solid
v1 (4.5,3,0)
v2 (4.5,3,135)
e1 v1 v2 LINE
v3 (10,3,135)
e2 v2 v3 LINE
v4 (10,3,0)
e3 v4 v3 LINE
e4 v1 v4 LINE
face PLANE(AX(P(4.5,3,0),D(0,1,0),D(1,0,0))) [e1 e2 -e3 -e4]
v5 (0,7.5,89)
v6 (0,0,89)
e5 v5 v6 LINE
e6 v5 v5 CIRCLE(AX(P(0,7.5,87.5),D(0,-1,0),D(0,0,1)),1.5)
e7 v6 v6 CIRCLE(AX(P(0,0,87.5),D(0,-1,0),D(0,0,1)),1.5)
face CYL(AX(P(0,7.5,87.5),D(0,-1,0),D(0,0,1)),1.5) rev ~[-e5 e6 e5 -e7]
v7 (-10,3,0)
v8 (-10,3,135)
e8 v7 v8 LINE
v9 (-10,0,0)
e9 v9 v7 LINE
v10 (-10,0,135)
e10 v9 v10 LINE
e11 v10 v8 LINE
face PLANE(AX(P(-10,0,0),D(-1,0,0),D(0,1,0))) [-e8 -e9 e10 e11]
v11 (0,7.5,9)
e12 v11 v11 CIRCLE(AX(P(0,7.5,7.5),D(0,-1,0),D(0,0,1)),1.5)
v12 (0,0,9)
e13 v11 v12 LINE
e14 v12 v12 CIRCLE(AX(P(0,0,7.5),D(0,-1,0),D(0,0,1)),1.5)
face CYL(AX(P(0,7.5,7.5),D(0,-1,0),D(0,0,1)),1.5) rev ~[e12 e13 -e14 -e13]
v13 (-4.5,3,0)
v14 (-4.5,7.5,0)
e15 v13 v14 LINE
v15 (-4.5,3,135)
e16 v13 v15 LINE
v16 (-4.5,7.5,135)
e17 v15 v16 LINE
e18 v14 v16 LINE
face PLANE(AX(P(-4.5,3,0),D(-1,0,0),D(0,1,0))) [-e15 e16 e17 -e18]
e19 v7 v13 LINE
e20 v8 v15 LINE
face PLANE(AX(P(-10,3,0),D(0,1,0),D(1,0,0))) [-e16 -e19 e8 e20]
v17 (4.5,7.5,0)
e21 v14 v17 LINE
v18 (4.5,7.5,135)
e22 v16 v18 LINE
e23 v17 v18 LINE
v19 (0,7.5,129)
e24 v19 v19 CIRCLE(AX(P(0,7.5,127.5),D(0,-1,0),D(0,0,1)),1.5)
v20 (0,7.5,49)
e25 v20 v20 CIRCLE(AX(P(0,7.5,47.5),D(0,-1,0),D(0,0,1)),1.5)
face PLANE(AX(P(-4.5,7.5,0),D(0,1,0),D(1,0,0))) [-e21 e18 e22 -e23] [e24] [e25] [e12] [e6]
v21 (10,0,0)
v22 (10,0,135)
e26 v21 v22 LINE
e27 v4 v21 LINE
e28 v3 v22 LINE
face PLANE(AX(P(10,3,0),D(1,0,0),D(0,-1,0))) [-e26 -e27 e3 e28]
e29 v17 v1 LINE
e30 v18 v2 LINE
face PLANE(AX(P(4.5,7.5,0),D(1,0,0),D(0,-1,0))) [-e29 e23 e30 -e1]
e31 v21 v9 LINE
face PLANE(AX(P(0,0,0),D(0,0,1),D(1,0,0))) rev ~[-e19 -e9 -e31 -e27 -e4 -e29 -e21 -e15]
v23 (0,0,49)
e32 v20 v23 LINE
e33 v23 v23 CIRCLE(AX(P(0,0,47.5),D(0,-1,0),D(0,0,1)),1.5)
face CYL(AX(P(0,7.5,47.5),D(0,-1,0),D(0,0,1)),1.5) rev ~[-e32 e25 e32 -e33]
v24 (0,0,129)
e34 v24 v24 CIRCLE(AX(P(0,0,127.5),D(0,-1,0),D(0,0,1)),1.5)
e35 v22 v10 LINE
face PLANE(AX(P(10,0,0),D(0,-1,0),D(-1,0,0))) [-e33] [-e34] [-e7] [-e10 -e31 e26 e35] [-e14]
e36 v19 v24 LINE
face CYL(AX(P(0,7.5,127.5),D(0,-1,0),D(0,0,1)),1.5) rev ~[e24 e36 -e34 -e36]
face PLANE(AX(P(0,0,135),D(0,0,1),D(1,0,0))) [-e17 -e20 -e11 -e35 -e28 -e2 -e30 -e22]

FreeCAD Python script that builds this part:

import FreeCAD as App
import Part
import Sketcher

doc = App.newDocument("Part")
body = doc.addObject("PartDesign::Body", "Body")

# Sketch on XY plane
sketch1 = body.newObject("Sketcher::SketchObject", "Sketch")
sketch1.AttachmentSupport = (doc.getObject("XY_Plane"), [""])
sketch1.MapMode = "FlatFace"
sketch1.addGeometry([
    Part.LineSegment(App.Vector(-4.5, 3, 0), App.Vector(-10, 3, 0)),  # 0
    Part.LineSegment(App.Vector(-10, 3, 0), App.Vector(-10, 0, 0)),  # 1
    Part.LineSegment(App.Vector(-10, 0, 0), App.Vector(10, 0, 0)),  # 2
    Part.LineSegment(App.Vector(10, 0, 0), App.Vector(10, 3, 0)),  # 3
    Part.LineSegment(App.Vector(10, 3, 0), App.Vector(4.5, 3, 0)),  # 4
    Part.LineSegment(App.Vector(4.5, 3, 0), App.Vector(4.5, 7.5, 0)),  # 5
    Part.LineSegment(App.Vector(4.5, 7.5, 0), App.Vector(-4.5, 7.5, 0)),  # 6
    Part.LineSegment(App.Vector(-4.5, 7.5, 0), App.Vector(-4.5, 3, 0)),  # 7
], False)
sketch1.addConstraint([
    Sketcher.Constraint("Coincident", 0, 2, 1, 1),
    Sketcher.Constraint("Coincident", 1, 2, 2, 1),
    Sketcher.Constraint("Coincident", 2, 2, 3, 1),
    Sketcher.Constraint("Coincident", 3, 2, 4, 1),
    Sketcher.Constraint("Coincident", 4, 2, 5, 1),
    Sketcher.Constraint("Coincident", 5, 2, 6, 1),
    Sketcher.Constraint("Coincident", 6, 2, 7, 1),
    Sketcher.Constraint("Coincident", 7, 2, 0, 1),
    Sketcher.Constraint("Horizontal", 0),
    Sketcher.Constraint("Vertical", 1),
    Sketcher.Constraint("Horizontal", 2),
    Sketcher.Constraint("Vertical", 3),
    Sketcher.Constraint("Horizontal", 4),
    Sketcher.Constraint("Vertical", 5),
    Sketcher.Constraint("Horizontal", 6),
    Sketcher.Constraint("Vertical", 7),
    Sketcher.Constraint("Symmetric", 1, 2, 2, 2, -1, 1),
    Sketcher.Constraint("Symmetric", 4, 2, 7, 2, -2),
    Sketcher.Constraint("DistanceX", 2, 1, 2, 2, 20.0),
    Sketcher.Constraint("DistanceX", 6, 2, 6, 1, 9.0),
    Sketcher.Constraint("DistanceY", 1, 2, 1, 1, 3.0),
    Sketcher.Constraint("DistanceY", 5, 1, 5, 2, 4.5),
])
pad1 = body.newObject("PartDesign::Pad", "Pad")
pad1.Profile = sketch1
pad1.Length = 135

# Sketch on XZ plane
sketch2 = body.newObject("Sketcher::SketchObject", "Sketch001")
sketch2.AttachmentSupport = (doc.getObject("XZ_Plane"), [""])
sketch2.MapMode = "FlatFace"
sketch2.AttachmentOffset = App.Placement(App.Vector(0, 0, -7.5), App.Rotation())
sketch2.addGeometry([
    Part.Circle(App.Vector(0, 7.5, 0), App.Vector(0, 0, 1), 1.5),
    Part.Circle(App.Vector(0, 47.5, 0), App.Vector(0, 0, 1), 1.5),
    Part.Circle(App.Vector(0, 87.5, 0), App.Vector(0, 0, 1), 1.5),
    Part.Circle(App.Vector(0, 127.5, 0), App.Vector(0, 0, 1), 1.5),
], False)
sketch2.addConstraint([
    Sketcher.Constraint("Equal", 0, 1),
    Sketcher.Constraint("Equal", 1, 2),
    Sketcher.Constraint("Equal", 2, 3),
    Sketcher.Constraint("PointOnObject", 0, 3, -2),
    Sketcher.Constraint("PointOnObject", 1, 3, -2),
    Sketcher.Constraint("PointOnObject", 2, 3, -2),
    Sketcher.Constraint("PointOnObject", 3, 3, -2),
    Sketcher.Constraint("Diameter", 0, 3.0),
    Sketcher.Constraint("DistanceY", 0, 3, 1, 3, 40.0),
    Sketcher.Constraint("DistanceY", 1, 3, 2, 3, 40.0),
    Sketcher.Constraint("DistanceY", 2, 3, 3, 3, 40.0),
    Sketcher.Constraint("DistanceY", -1, 1, 0, 3, 7.5),
])
doc.recompute()
hole = body.newObject("PartDesign::Hole", "Hole")
hole.Profile = sketch2
hole.ThreadType = "None"
hole.Diameter = 3
hole.DepthType = "ThroughAll"
hole.Reversed = True

doc.recompute()
